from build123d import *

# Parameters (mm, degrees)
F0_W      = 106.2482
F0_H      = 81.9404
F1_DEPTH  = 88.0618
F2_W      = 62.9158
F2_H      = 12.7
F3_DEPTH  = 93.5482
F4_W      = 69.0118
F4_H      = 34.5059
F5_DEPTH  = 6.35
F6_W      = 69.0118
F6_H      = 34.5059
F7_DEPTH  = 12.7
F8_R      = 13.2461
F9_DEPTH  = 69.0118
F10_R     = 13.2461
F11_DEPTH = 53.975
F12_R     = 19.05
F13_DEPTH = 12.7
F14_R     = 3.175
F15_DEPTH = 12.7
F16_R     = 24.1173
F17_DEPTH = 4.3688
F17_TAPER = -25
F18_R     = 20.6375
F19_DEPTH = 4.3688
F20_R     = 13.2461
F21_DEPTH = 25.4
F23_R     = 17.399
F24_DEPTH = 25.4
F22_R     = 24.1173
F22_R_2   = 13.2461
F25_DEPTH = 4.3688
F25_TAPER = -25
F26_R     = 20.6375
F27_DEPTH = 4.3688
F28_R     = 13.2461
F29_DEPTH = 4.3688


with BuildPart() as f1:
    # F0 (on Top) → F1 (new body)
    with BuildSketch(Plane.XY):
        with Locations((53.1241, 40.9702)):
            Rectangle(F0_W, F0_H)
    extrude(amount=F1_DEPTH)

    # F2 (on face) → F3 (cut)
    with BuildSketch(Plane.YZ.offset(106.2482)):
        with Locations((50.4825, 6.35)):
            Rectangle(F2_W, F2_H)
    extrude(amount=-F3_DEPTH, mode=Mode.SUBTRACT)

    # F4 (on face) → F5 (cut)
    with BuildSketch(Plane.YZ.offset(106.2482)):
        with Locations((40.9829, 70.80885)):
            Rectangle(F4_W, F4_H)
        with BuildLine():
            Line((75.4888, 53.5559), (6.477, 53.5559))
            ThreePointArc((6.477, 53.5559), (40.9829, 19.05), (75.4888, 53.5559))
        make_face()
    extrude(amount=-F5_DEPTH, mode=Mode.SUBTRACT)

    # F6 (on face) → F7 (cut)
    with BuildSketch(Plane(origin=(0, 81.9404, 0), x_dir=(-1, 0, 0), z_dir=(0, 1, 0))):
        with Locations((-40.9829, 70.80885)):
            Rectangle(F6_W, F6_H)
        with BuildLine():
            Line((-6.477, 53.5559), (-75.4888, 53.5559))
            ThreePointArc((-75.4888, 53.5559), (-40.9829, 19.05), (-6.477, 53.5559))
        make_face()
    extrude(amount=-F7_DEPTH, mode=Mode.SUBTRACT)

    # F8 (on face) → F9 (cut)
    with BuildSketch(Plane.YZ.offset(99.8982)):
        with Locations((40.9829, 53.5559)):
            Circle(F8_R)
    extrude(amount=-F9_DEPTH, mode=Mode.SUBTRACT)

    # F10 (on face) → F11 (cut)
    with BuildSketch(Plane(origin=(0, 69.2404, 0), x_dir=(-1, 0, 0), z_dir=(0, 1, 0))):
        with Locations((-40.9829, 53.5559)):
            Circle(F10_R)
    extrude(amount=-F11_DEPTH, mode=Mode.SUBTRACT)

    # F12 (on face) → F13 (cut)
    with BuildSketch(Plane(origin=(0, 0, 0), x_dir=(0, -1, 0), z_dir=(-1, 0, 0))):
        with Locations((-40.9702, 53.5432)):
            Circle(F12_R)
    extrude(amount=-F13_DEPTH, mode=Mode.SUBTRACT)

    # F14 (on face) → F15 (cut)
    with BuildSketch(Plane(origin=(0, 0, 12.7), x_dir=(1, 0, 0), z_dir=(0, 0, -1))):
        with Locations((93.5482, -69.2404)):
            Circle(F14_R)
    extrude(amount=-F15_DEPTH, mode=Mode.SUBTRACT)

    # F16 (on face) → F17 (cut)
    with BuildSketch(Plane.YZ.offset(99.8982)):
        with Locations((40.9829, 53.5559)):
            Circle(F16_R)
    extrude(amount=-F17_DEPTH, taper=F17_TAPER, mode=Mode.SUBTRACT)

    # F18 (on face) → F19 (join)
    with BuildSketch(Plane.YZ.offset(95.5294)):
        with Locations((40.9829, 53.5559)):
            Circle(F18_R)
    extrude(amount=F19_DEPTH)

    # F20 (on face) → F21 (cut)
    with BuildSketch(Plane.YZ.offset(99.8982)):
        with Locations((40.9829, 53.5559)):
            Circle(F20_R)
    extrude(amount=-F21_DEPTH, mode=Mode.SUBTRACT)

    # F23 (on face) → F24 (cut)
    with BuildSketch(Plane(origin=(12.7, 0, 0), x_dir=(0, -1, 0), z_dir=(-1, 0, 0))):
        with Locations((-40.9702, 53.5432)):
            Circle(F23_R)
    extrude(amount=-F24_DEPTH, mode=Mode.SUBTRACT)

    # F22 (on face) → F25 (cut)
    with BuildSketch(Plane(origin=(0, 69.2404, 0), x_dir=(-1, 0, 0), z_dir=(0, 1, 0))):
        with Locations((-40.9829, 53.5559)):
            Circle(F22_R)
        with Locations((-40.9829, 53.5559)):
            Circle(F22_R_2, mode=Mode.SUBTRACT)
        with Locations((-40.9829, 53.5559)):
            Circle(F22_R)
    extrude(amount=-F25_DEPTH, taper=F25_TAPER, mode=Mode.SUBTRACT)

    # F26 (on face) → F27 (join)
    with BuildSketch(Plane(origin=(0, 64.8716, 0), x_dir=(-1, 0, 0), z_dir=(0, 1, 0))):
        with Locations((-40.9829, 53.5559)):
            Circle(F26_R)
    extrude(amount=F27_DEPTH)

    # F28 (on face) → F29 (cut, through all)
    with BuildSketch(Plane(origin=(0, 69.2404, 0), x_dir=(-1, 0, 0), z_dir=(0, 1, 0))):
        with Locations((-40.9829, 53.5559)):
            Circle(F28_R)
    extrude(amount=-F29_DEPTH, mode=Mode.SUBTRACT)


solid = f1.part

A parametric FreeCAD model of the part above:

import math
import FreeCAD as App
import Part
import Sketcher

V = App.Vector
Q = App.Units.Quantity


def add_polygon(sketch, points):
    """Adds a closed chain of lines whose ends are joined by coincident constraints."""
    first, n = sketch.GeometryCount, len(points)
    for a, b in zip(points, points[1:] + points[:1]):
        sketch.addGeometry(Part.LineSegment(App.Vector(*a, 0), App.Vector(*b, 0)), False)
    for i in range(n):
        sketch.addConstraint(Sketcher.Constraint("Coincident", first + i, 2, first + (i + 1) % n, 1))

doc = App.newDocument("Part")
body = doc.addObject("PartDesign::Body", "Body")

# Sketch on XY plane
sketch1 = body.newObject("Sketcher::SketchObject", "Sketch")
sketch1.AttachmentSupport = (doc.getObject("XY_Plane"), [""])
sketch1.MapMode = "FlatFace"
add_polygon(sketch1, [(0, 82), (0, 0), (106, 0), (106, 82)])  # lines 0-3
sketch1.addConstraint([
    Sketcher.Constraint("Vertical", 0),
    Sketcher.Constraint("Horizontal", 1),
    Sketcher.Constraint("Vertical", 2),
    Sketcher.Constraint("Horizontal", 3),
    Sketcher.Constraint("Coincident", 0, 2, -1, 1),
    Sketcher.Constraint("DistanceX", 1, 1, 1, 2, Q("4.183 in")),
    Sketcher.Constraint("DistanceY", 0, 2, 0, 1, Q("3.226 in")),
])
pad1 = body.newObject("PartDesign::Pad", "Pad")
pad1.Profile = sketch1
pad1.Length = Q("3.467 in")

# Sketch on YZ plane
sketch2 = body.newObject("Sketcher::SketchObject", "Sketch001")
sketch2.AttachmentSupport = (doc.getObject("YZ_Plane"), [""])
sketch2.MapMode = "FlatFace"
sketch2.AttachmentOffset = App.Placement(V(0, 0, 4.183 * 25.4), App.Rotation())
add_polygon(sketch2, [(19, 13), (19, 0), (82, 0), (82, 13)])  # lines 0-3
sketch2.addConstraint([
    Sketcher.Constraint("Vertical", 0),
    Sketcher.Constraint("Horizontal", 1),
    Sketcher.Constraint("Vertical", 2),
    Sketcher.Constraint("Horizontal", 3),
    Sketcher.Constraint("PointOnObject", 0, 2, -1),
    Sketcher.Constraint("DistanceY", 0, 2, 0, 1, Q("0.5 in")),
    Sketcher.Constraint("DistanceX", 1, 1, 1, 2, Q("2.477 in")),
    Sketcher.Constraint("DistanceX", -1, 1, 0, 2, Q("0.749 in")),
])
pocket1 = body.newObject("PartDesign::Pocket", "Pocket")
pocket1.Profile = sketch2
pocket1.Length = Q("3.683 in")

# Sketch on YZ plane
sketch3 = body.newObject("Sketcher::SketchObject", "Sketch002")
sketch3.AttachmentSupport = (doc.getObject("YZ_Plane"), [""])
sketch3.MapMode = "FlatFace"
sketch3.AttachmentOffset = App.Placement(V(0, 0, 4.183 * 25.4), App.Rotation())
sketch3.addGeometry([
    Part.LineSegment(V(6, 88, 0), V(6, 54, 0)),
    Part.ArcOfCircle(Part.Circle(V(41, 54, 0), V(0, 0, 1), 35), math.radians(180), math.radians(360)),
    Part.LineSegment(V(75, 54, 0), V(75, 88, 0)),
    Part.LineSegment(V(75, 88, 0), V(6, 88, 0)),
], False)
sketch3.addConstraint([
    Sketcher.Constraint("Tangent", 0, 2, 1, 1),
    Sketcher.Constraint("Tangent", 1, 2, 2, 1),
    Sketcher.Constraint("Coincident", 2, 2, 3, 1),
    Sketcher.Constraint("Coincident", 3, 2, 0, 1),
    Sketcher.Constraint("Vertical", 0),
    Sketcher.Constraint("Vertical", 2),
    Sketcher.Constraint("Horizontal", 3),
    Sketcher.Constraint("Radius", 1, Q("1.3585 in")),
    Sketcher.Constraint("DistanceY", 0, 2, 0, 1, Q("1.3585 in")),
    Sketcher.Constraint("DistanceX", -1, 1, 0, 2, Q("0.255 in")),
    Sketcher.Constraint("DistanceY", -1, 1, 2, 2, Q("3.467 in")),
])
pocket2 = body.newObject("PartDesign::Pocket", "Pocket001")
pocket2.Profile = sketch3
pocket2.Length = Q("0.25 in")

# Sketch on XZ plane
sketch4 = body.newObject("Sketcher::SketchObject", "Sketch003")
sketch4.AttachmentSupport = (doc.getObject("XZ_Plane"), [""])
sketch4.MapMode = "FlatFace"
sketch4.AttachmentOffset = App.Placement(V(0, 0, -3.226 * 25.4), App.Rotation())
sketch4.addGeometry([
    Part.LineSegment(V(75, 88, 0), V(75, 54, 0)),
    Part.ArcOfCircle(Part.Circle(V(41, 54, 0), V(0, 0, 1), 35), math.radians(180), math.radians(360)),
    Part.LineSegment(V(6, 54, 0), V(6, 88, 0)),
    Part.LineSegment(V(6, 88, 0), V(75, 88, 0)),
], False)
sketch4.addConstraint([
    Sketcher.Constraint("Tangent", 0, 2, 1, 2),
    Sketcher.Constraint("Tangent", 1, 1, 2, 1),
    Sketcher.Constraint("Coincident", 2, 2, 3, 1),
    Sketcher.Constraint("Coincident", 3, 2, 0, 1),
    Sketcher.Constraint("Vertical", 0),
    Sketcher.Constraint("Vertical", 2),
    Sketcher.Constraint("Horizontal", 3),
    Sketcher.Constraint("Radius", 1, Q("1.3585 in")),
    Sketcher.Constraint("DistanceY", 0, 2, 0, 1, Q("1.3585 in")),
    Sketcher.Constraint("DistanceX", -1, 1, 0, 2, Q("2.972 in")),
    Sketcher.Constraint("DistanceY", -1, 1, 2, 2, Q("3.467 in")),
])
pocket3 = body.newObject("PartDesign::Pocket", "Pocket002")
pocket3.Profile = sketch4
pocket3.Length = Q("0.5 in")
pocket3.Reversed = True

# Sketch on YZ plane
sketch5 = body.newObject("Sketcher::SketchObject", "Sketch004")
sketch5.AttachmentSupport = (doc.getObject("YZ_Plane"), [""])
sketch5.MapMode = "FlatFace"
sketch5.AttachmentOffset = App.Placement(V(0, 0, 3.933 * 25.4), App.Rotation())
sketch5.addGeometry(Part.Circle(V(41, 54, 0), V(0, 0, 1), 13), False)
sketch5.addConstraint([
    Sketcher.Constraint("Diameter", 0, Q("1.043 in")),
    Sketcher.Constraint("DistanceX", -1, 1, 0, 3, Q("1.6135 in")),
    Sketcher.Constraint("DistanceY", -1, 1, 0, 3, Q("2.1085 in")),
])
pocket4 = body.newObject("PartDesign::Pocket", "Pocket003")
pocket4.Profile = sketch5
pocket4.Length = Q("2.717 in")

# Sketch on XZ plane
sketch6 = body.newObject("Sketcher::SketchObject", "Sketch005")
sketch6.AttachmentSupport = (doc.getObject("XZ_Plane"), [""])
sketch6.MapMode = "FlatFace"
sketch6.AttachmentOffset = App.Placement(V(0, 0, -2.726 * 25.4), App.Rotation())
sketch6.addGeometry(Part.Circle(V(41, 54, 0), V(0, 0, 1), 13), False)
sketch6.addConstraint([
    Sketcher.Constraint("Diameter", 0, Q("1.043 in")),
    Sketcher.Constraint("DistanceX", -1, 1, 0, 3, Q("1.6135 in")),
    Sketcher.Constraint("DistanceY", -1, 1, 0, 3, Q("2.1085 in")),
])
pocket5 = body.newObject("PartDesign::Pocket", "Pocket004")
pocket5.Profile = sketch6
pocket5.Length = Q("2.125 in")
pocket5.Reversed = True

# Sketch on YZ plane
sketch7 = body.newObject("Sketcher::SketchObject", "Sketch006")
sketch7.AttachmentSupport = (doc.getObject("YZ_Plane"), [""])
sketch7.MapMode = "FlatFace"
sketch7.addGeometry(Part.Circle(V(41, 54, 0), V(0, 0, 1), 19), False)
sketch7.addConstraint([
    Sketcher.Constraint("Diameter", 0, Q("1.5 in")),
    Sketcher.Constraint("DistanceX", -1, 1, 0, 3, Q("1.613 in")),
    Sketcher.Constraint("DistanceY", -1, 1, 0, 3, Q("2.108 in")),
])
pocket6 = body.newObject("PartDesign::Pocket", "Pocket005")
pocket6.Profile = sketch7
pocket6.Length = Q("0.5 in")
pocket6.Reversed = True

# Sketch on XY plane
sketch8 = body.newObject("Sketcher::SketchObject", "Sketch007")
sketch8.AttachmentSupport = (doc.getObject("XY_Plane"), [""])
sketch8.MapMode = "FlatFace"
sketch8.AttachmentOffset = App.Placement(V(0, 0, 0.5 * 25.4), App.Rotation())
sketch8.addGeometry(Part.Circle(V(93.5, 69.2, 0), V(0, 0, 1), 3.2), False)
sketch8.addConstraint([
    Sketcher.Constraint("Diameter", 0, Q("0.25 in")),
    Sketcher.Constraint("DistanceX", -1, 1, 0, 3, Q("3.683 in")),
    Sketcher.Constraint("DistanceY", -1, 1, 0, 3, Q("2.726 in")),
])
pocket7 = body.newObject("PartDesign::Pocket", "Pocket006")
pocket7.Profile = sketch8
pocket7.Length = Q("0.5 in")
pocket7.Reversed = True

# Sketch on YZ plane
sketch9 = body.newObject("Sketcher::SketchObject", "Sketch008")
sketch9.AttachmentSupport = (doc.getObject("YZ_Plane"), [""])
sketch9.MapMode = "FlatFace"
sketch9.AttachmentOffset = App.Placement(V(0, 0, 3.933 * 25.4), App.Rotation())
sketch9.addGeometry(Part.Circle(V(41, 54, 0), V(0, 0, 1), 24), False)
sketch9.addConstraint([
    Sketcher.Constraint("Diameter", 0, Q("1.899 in")),
    Sketcher.Constraint("DistanceX", -1, 1, 0, 3, Q("1.6135 in")),
    Sketcher.Constraint("DistanceY", -1, 1, 0, 3, Q("2.1085 in")),
])
pocket8 = body.newObject("PartDesign::Pocket", "Pocket007")
pocket8.Profile = sketch9
pocket8.Length = Q("0.172 in")
pocket8.TaperAngle = 25

# Sketch on YZ plane
sketch10 = body.newObject("Sketcher::SketchObject", "Sketch009")
sketch10.AttachmentSupport = (doc.getObject("YZ_Plane"), [""])
sketch10.MapMode = "FlatFace"
sketch10.AttachmentOffset = App.Placement(V(0, 0, 3.761 * 25.4), App.Rotation())
sketch10.addGeometry(Part.Circle(V(41, 54, 0), V(0, 0, 1), 21), False)
sketch10.addConstraint([
    Sketcher.Constraint("Diameter", 0, Q("1.625 in")),
    Sketcher.Constraint("DistanceX", -1, 1, 0, 3, Q("1.6135 in")),
    Sketcher.Constraint("DistanceY", -1, 1, 0, 3, Q("2.1085 in")),
])
pad2 = body.newObject("PartDesign::Pad", "Pad001")
pad2.Profile = sketch10
pad2.Length = Q("0.172 in")

# Sketch on YZ plane
sketch11 = body.newObject("Sketcher::SketchObject", "Sketch010")
sketch11.AttachmentSupport = (doc.getObject("YZ_Plane"), [""])
sketch11.MapMode = "FlatFace"
sketch11.AttachmentOffset = App.Placement(V(0, 0, 3.933 * 25.4), App.Rotation())
sketch11.addGeometry(Part.Circle(V(41, 54, 0), V(0, 0, 1), 13), False)
sketch11.addConstraint([
    Sketcher.Constraint("Diameter", 0, Q("1.043 in")),
    Sketcher.Constraint("DistanceX", -1, 1, 0, 3, Q("1.6135 in")),
    Sketcher.Constraint("DistanceY", -1, 1, 0, 3, Q("2.1085 in")),
])
pocket9 = body.newObject("PartDesign::Pocket", "Pocket008")
pocket9.Profile = sketch11
pocket9.Length = Q("1 in")

# Sketch on YZ plane
sketch12 = body.newObject("Sketcher::SketchObject", "Sketch011")
sketch12.AttachmentSupport = (doc.getObject("YZ_Plane"), [""])
sketch12.MapMode = "FlatFace"
sketch12.AttachmentOffset = App.Placement(V(0, 0, 0.5 * 25.4), App.Rotation())
sketch12.addGeometry(Part.Circle(V(41, 54, 0), V(0, 0, 1), 17), False)
sketch12.addConstraint([
    Sketcher.Constraint("Diameter", 0, Q("1.37 in")),
    Sketcher.Constraint("DistanceX", -1, 1, 0, 3, Q("1.613 in")),
    Sketcher.Constraint("DistanceY", -1, 1, 0, 3, Q("2.108 in")),
])
pocket10 = body.newObject("PartDesign::Pocket", "Pocket009")
pocket10.Profile = sketch12
pocket10.Length = Q("1 in")
pocket10.Reversed = True

# Sketch on XZ plane
sketch13 = body.newObject("Sketcher::SketchObject", "Sketch012")
sketch13.AttachmentSupport = (doc.getObject("XZ_Plane"), [""])
sketch13.MapMode = "FlatFace"
sketch13.AttachmentOffset = App.Placement(V(0, 0, -2.726 * 25.4), App.Rotation())
sketch13.addGeometry(Part.Circle(V(41, 54, 0), V(0, 0, 1), 24), False)
sketch13.addConstraint([
    Sketcher.Constraint("Diameter", 0, Q("1.899 in")),
    Sketcher.Constraint("DistanceX", -1, 1, 0, 3, Q("1.6135 in")),
    Sketcher.Constraint("DistanceY", -1, 1, 0, 3, Q("2.1085 in")),
])
pocket11 = body.newObject("PartDesign::Pocket", "Pocket010")
pocket11.Profile = sketch13
pocket11.Length = Q("0.172 in")
pocket11.Reversed = True
pocket11.TaperAngle = 25

# Sketch on XZ plane
sketch14 = body.newObject("Sketcher::SketchObject", "Sketch013")
sketch14.AttachmentSupport = (doc.getObject("XZ_Plane"), [""])
sketch14.MapMode = "FlatFace"
sketch14.AttachmentOffset = App.Placement(V(0, 0, -2.554 * 25.4), App.Rotation())
sketch14.addGeometry(Part.Circle(V(41, 54, 0), V(0, 0, 1), 21), False)
sketch14.addConstraint([
    Sketcher.Constraint("Diameter", 0, Q("1.625 in")),
    Sketcher.Constraint("DistanceX", -1, 1, 0, 3, Q("1.6135 in")),
    Sketcher.Constraint("DistanceY", -1, 1, 0, 3, Q("2.1085 in")),
])
pad3 = body.newObject("PartDesign::Pad", "Pad002")
pad3.Profile = sketch14
pad3.Length = Q("0.172 in")
pad3.Reversed = True

# Sketch on XZ plane
sketch15 = body.newObject("Sketcher::SketchObject", "Sketch014")
sketch15.AttachmentSupport = (doc.getObject("XZ_Plane"), [""])
sketch15.MapMode = "FlatFace"
sketch15.AttachmentOffset = App.Placement(V(0, 0, -2.726 * 25.4), App.Rotation())
sketch15.addGeometry(Part.Circle(V(41, 54, 0), V(0, 0, 1), 13), False)
sketch15.addConstraint([
    Sketcher.Constraint("Diameter", 0, Q("1.043 in")),
    Sketcher.Constraint("DistanceX", -1, 1, 0, 3, Q("1.6135 in")),
    Sketcher.Constraint("DistanceY", -1, 1, 0, 3, Q("2.1085 in")),
])
pocket12 = body.newObject("PartDesign::Pocket", "Pocket011")
pocket12.Profile = sketch15
pocket12.Length = Q("0.172 in")
pocket12.Reversed = True

doc.recompute()
